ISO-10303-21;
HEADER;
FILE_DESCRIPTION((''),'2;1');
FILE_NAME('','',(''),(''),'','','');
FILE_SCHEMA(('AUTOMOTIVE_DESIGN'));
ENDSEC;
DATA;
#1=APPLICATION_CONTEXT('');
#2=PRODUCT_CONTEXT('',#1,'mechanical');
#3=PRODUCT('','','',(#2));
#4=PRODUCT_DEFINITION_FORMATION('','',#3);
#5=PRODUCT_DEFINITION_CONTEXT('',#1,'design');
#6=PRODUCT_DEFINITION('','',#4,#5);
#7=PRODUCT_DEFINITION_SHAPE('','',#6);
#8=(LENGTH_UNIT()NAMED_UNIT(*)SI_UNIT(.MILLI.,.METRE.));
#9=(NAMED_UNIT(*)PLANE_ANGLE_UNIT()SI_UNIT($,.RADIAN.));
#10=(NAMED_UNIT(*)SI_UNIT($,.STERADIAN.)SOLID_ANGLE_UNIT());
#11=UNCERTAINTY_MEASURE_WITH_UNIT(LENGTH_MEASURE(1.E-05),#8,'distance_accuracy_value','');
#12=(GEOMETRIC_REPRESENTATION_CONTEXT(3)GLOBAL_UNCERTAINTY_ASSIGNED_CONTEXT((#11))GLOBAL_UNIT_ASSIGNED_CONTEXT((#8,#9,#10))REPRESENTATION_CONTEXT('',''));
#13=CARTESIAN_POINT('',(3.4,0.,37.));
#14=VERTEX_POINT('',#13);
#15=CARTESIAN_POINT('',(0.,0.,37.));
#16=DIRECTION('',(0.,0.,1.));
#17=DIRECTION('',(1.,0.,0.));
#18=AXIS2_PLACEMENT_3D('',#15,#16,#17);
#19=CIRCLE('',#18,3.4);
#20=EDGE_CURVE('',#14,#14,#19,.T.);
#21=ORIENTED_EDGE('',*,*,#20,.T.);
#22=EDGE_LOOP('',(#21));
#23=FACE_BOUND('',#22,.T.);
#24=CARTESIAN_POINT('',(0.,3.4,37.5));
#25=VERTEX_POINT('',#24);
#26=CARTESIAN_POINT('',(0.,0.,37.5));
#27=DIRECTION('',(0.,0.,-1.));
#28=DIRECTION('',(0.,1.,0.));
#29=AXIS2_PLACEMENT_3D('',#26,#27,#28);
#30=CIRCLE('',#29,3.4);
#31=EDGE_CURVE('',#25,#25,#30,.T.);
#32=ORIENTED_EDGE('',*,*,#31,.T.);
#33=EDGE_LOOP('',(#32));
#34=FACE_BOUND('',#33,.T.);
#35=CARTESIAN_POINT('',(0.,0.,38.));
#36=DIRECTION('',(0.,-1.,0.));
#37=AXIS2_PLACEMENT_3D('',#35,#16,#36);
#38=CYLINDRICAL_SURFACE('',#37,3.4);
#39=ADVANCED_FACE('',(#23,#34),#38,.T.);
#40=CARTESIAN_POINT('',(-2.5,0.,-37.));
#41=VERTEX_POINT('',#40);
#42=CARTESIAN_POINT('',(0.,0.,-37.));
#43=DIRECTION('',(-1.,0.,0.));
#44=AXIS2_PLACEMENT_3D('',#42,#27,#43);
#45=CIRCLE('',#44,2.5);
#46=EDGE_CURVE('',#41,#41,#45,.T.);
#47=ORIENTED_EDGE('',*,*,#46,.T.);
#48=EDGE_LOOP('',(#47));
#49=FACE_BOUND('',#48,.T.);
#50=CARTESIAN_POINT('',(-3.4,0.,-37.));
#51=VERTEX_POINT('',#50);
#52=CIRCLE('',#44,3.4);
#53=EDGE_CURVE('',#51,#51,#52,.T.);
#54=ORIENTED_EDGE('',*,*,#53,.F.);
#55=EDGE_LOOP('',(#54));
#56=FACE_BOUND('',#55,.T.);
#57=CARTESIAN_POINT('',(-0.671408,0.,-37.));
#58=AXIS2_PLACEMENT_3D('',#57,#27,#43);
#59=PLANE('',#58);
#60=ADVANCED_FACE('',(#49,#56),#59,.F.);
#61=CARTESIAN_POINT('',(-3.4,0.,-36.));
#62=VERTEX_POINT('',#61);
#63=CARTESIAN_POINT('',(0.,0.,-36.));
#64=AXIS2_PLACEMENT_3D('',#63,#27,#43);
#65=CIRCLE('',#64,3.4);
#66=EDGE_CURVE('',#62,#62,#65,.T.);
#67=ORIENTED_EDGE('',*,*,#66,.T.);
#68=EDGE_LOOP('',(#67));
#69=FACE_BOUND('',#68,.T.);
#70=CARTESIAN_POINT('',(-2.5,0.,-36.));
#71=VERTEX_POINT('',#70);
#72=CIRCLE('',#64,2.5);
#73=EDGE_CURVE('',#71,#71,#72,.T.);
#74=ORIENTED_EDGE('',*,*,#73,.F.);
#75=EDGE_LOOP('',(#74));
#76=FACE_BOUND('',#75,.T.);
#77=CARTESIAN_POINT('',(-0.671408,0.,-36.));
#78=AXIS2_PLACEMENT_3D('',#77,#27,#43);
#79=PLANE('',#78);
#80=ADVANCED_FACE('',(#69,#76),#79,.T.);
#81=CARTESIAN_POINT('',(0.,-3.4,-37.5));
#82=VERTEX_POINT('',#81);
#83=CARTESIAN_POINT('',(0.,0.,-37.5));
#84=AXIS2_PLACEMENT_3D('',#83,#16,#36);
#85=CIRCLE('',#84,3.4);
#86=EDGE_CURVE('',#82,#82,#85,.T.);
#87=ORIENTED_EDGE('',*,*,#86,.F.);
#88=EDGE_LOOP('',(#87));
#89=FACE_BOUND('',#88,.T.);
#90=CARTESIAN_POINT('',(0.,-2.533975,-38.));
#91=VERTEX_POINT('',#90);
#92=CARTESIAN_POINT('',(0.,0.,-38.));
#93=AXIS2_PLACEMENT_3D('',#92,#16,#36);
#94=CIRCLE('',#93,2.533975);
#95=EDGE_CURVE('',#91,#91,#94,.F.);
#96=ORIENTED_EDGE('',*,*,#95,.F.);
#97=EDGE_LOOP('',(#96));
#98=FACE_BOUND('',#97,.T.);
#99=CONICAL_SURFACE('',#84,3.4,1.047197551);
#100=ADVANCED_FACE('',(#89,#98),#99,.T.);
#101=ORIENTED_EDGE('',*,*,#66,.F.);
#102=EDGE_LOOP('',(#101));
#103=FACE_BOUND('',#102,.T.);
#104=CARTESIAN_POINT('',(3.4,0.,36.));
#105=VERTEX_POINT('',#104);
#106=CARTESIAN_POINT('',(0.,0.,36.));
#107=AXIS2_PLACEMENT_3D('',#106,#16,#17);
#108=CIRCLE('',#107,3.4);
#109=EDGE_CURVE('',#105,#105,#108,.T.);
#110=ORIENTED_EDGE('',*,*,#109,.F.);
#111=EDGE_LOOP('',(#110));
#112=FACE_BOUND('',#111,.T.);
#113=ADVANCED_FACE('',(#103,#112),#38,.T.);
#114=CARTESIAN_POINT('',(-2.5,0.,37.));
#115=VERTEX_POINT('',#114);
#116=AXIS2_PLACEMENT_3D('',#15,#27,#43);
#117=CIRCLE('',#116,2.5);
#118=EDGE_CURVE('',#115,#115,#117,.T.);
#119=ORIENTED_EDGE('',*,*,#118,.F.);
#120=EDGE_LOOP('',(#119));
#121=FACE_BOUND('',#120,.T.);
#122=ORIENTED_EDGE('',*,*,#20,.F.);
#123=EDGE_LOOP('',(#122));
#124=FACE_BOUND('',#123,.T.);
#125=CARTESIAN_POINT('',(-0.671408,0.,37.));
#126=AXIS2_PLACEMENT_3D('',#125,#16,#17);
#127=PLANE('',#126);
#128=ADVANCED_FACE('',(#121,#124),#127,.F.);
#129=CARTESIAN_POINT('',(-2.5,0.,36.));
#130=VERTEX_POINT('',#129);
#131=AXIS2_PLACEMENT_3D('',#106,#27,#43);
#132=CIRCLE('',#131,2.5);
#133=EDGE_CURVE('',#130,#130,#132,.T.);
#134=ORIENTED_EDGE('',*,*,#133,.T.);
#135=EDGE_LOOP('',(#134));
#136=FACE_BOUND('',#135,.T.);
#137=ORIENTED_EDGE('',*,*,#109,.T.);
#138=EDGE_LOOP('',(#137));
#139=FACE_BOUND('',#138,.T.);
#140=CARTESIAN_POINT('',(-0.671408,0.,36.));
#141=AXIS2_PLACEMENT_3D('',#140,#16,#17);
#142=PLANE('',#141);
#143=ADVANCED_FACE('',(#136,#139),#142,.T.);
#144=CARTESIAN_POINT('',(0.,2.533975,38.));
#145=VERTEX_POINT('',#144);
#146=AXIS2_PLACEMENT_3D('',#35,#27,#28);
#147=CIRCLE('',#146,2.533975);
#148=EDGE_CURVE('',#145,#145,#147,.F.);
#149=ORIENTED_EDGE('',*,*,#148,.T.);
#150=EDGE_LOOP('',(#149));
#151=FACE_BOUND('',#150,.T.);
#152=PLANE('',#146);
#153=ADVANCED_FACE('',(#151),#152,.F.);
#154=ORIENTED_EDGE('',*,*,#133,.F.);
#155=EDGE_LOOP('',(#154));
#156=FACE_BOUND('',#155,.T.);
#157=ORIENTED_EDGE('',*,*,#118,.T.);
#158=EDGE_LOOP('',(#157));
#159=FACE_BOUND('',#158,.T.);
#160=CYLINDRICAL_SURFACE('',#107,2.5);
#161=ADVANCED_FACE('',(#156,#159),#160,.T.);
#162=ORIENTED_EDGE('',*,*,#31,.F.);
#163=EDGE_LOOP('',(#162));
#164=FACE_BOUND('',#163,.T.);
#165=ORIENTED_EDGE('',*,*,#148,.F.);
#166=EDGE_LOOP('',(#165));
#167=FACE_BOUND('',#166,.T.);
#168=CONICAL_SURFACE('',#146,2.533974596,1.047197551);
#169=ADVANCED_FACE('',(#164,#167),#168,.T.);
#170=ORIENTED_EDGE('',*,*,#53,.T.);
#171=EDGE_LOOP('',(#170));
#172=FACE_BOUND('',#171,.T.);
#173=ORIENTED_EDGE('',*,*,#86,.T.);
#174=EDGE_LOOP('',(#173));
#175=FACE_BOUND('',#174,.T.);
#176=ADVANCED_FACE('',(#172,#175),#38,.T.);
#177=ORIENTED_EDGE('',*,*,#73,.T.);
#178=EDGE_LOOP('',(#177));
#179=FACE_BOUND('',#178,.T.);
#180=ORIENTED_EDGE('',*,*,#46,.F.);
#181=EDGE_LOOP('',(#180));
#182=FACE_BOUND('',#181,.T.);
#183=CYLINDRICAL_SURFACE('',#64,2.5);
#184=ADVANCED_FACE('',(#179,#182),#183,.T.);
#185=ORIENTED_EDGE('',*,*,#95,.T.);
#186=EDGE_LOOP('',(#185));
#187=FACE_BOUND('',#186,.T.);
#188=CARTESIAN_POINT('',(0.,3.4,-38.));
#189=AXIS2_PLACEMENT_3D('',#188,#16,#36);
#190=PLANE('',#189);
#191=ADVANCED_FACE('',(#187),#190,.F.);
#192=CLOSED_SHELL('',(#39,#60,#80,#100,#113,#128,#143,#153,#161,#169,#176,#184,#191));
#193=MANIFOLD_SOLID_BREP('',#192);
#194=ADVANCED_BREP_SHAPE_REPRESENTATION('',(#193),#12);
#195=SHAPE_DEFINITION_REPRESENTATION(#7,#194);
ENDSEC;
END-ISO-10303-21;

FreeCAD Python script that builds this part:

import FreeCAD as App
import Part
import Sketcher


def edges_at(feature, points):
    """Names of the edges that pass closest to the given points."""
    edges = feature.Shape.Edges
    near = lambda p: min(range(len(edges)), key=lambda i: edges[i].distToShape(Part.Vertex(*p))[0])
    return sorted({f"Edge{near(p) + 1}" for p in points})

doc = App.newDocument("Part")
params = doc.addObject("Spreadsheet::Sheet", "Params")
for row, (alias, value) in enumerate([
    ("sketch1_height", "76 mm"),
    ("sketch1_width", "3.4 mm"),
    ("revolution_angle", "360 deg"),
    ("chamfer_size", "0.5 mm"),
    ("chamfer_size2", "0.866025 mm"),
    ("sketch2_diameter", "5 mm"),
    ("pocket1_length", "1 mm"),
], start=1):
    params.set(f"A{row}", alias)
    params.set(f"B{row}", "=" + value)
    params.setAlias(f"B{row}", alias)

body = doc.addObject("PartDesign::Body", "Body")

# Sketch on YZ plane
sketch1 = body.newObject("Sketcher::SketchObject", "Sketch")
sketch1.AttachmentSupport = (doc.getObject("YZ_Plane"), [""])
sketch1.MapMode = "FlatFace"
sketch1.addGeometry([
    Part.LineSegment(App.Vector(3.4, 38, 0), App.Vector(0, 38, 0)),
    Part.LineSegment(App.Vector(0, 38, 0), App.Vector(0, -38, 0)),
    Part.LineSegment(App.Vector(0, -38, 0), App.Vector(3.4, -38, 0)),
    Part.LineSegment(App.Vector(3.4, -38, 0), App.Vector(3.4, 38, 0)),
], False)
sketch1.addConstraint([
    Sketcher.Constraint("Coincident", 0, 2, 1, 1),
    Sketcher.Constraint("Coincident", 1, 2, 2, 1),
    Sketcher.Constraint("Coincident", 2, 2, 3, 1),
    Sketcher.Constraint("Coincident", 3, 2, 0, 1),
    Sketcher.Constraint("Horizontal", 0),
    Sketcher.Constraint("Vertical", 1),
    Sketcher.Constraint("Horizontal", 2),
    Sketcher.Constraint("Vertical", 3),
    Sketcher.Constraint("Symmetric", 0, 2, 1, 2, -1, 1),
    Sketcher.Constraint("DistanceY", 1, 2, 1, 1, 76.0),
    Sketcher.Constraint("DistanceX", 0, 2, 0, 1, 3.4),
])
sketch1.setExpression("Constraints[9]", "Params.sketch1_height")
sketch1.setExpression("Constraints[10]", "Params.sketch1_width")
revolution = body.newObject("PartDesign::Revolution", "Revolution")
revolution.Profile = sketch1
revolution.ReferenceAxis = (sketch1, ["V_Axis"])
revolution.setExpression("Angle", "Params.revolution_angle")
doc.recompute()

chamfer = body.newObject("PartDesign::Chamfer", "Chamfer")
chamfer.Base = (revolution, edges_at(revolution, [(0, 3.4, -38), (0, 3.4, 38)]))
chamfer.ChamferType = "Two distances"
chamfer.setExpression("Size", "Params.chamfer_size")
chamfer.setExpression("Size2", "Params.chamfer_size2")
chamfer.FlipDirection = True

# Sketch on XY plane
sketch2 = body.newObject("Sketcher::SketchObject", "Sketch001")
sketch2.AttachmentSupport = (doc.getObject("XY_Plane"), [""])
sketch2.MapMode = "FlatFace"
sketch2.AttachmentOffset = App.Placement(App.Vector(0, 0, -37), App.Rotation())
sketch2.addGeometry([
    Part.LineSegment(App.Vector(12.1, 12.1, 0), App.Vector(12.1, -12.1, 0)),  # 0
    Part.LineSegment(App.Vector(12.1, -12.1, 0), App.Vector(-12.1, -12.1, 0)),  # 1
    Part.LineSegment(App.Vector(-12.1, -12.1, 0), App.Vector(-12.1, 12.1, 0)),  # 2
    Part.LineSegment(App.Vector(-12.1, 12.1, 0), App.Vector(12.1, 12.1, 0)),  # 3
    Part.Circle(App.Vector(0, 0, 0), App.Vector(0, 0, 1), 2.5),  # 4
], False)
sketch2.addConstraint([
    Sketcher.Constraint("Coincident", 0, 2, 1, 1),
    Sketcher.Constraint("Coincident", 1, 2, 2, 1),
    Sketcher.Constraint("Coincident", 2, 2, 3, 1),
    Sketcher.Constraint("Coincident", 3, 2, 0, 1),
    Sketcher.Constraint("Vertical", 0),
    Sketcher.Constraint("Horizontal", 1),
    Sketcher.Constraint("Vertical", 2),
    Sketcher.Constraint("Horizontal", 3),
    Sketcher.Constraint("Coincident", 4, 3, -1, 1),
    Sketcher.Constraint("Symmetric", 0, 2, 2, 2, -1, 1),
    Sketcher.Constraint("Equal", 3, 0),
    Sketcher.Constraint("Diameter", 4, 5.0),
    Sketcher.Constraint("DistanceX", 1, 2, 1, 1, 24.122),
])
sketch2.setExpression("Constraints[11]", "Params.sketch2_diameter")
pocket1 = body.newObject("PartDesign::Pocket", "Pocket")
pocket1.Profile = sketch2
pocket1.setExpression("Length", "Params.pocket1_length")
pocket1.Reversed = True
doc.recompute()

mirrored = body.newObject("PartDesign::Mirrored", "Mirrored")
mirrored.Originals = [pocket1]
mirrored.MirrorPlane = (doc.getObject("XY_Plane"), [""])
body.Tip = mirrored

doc.recompute()
